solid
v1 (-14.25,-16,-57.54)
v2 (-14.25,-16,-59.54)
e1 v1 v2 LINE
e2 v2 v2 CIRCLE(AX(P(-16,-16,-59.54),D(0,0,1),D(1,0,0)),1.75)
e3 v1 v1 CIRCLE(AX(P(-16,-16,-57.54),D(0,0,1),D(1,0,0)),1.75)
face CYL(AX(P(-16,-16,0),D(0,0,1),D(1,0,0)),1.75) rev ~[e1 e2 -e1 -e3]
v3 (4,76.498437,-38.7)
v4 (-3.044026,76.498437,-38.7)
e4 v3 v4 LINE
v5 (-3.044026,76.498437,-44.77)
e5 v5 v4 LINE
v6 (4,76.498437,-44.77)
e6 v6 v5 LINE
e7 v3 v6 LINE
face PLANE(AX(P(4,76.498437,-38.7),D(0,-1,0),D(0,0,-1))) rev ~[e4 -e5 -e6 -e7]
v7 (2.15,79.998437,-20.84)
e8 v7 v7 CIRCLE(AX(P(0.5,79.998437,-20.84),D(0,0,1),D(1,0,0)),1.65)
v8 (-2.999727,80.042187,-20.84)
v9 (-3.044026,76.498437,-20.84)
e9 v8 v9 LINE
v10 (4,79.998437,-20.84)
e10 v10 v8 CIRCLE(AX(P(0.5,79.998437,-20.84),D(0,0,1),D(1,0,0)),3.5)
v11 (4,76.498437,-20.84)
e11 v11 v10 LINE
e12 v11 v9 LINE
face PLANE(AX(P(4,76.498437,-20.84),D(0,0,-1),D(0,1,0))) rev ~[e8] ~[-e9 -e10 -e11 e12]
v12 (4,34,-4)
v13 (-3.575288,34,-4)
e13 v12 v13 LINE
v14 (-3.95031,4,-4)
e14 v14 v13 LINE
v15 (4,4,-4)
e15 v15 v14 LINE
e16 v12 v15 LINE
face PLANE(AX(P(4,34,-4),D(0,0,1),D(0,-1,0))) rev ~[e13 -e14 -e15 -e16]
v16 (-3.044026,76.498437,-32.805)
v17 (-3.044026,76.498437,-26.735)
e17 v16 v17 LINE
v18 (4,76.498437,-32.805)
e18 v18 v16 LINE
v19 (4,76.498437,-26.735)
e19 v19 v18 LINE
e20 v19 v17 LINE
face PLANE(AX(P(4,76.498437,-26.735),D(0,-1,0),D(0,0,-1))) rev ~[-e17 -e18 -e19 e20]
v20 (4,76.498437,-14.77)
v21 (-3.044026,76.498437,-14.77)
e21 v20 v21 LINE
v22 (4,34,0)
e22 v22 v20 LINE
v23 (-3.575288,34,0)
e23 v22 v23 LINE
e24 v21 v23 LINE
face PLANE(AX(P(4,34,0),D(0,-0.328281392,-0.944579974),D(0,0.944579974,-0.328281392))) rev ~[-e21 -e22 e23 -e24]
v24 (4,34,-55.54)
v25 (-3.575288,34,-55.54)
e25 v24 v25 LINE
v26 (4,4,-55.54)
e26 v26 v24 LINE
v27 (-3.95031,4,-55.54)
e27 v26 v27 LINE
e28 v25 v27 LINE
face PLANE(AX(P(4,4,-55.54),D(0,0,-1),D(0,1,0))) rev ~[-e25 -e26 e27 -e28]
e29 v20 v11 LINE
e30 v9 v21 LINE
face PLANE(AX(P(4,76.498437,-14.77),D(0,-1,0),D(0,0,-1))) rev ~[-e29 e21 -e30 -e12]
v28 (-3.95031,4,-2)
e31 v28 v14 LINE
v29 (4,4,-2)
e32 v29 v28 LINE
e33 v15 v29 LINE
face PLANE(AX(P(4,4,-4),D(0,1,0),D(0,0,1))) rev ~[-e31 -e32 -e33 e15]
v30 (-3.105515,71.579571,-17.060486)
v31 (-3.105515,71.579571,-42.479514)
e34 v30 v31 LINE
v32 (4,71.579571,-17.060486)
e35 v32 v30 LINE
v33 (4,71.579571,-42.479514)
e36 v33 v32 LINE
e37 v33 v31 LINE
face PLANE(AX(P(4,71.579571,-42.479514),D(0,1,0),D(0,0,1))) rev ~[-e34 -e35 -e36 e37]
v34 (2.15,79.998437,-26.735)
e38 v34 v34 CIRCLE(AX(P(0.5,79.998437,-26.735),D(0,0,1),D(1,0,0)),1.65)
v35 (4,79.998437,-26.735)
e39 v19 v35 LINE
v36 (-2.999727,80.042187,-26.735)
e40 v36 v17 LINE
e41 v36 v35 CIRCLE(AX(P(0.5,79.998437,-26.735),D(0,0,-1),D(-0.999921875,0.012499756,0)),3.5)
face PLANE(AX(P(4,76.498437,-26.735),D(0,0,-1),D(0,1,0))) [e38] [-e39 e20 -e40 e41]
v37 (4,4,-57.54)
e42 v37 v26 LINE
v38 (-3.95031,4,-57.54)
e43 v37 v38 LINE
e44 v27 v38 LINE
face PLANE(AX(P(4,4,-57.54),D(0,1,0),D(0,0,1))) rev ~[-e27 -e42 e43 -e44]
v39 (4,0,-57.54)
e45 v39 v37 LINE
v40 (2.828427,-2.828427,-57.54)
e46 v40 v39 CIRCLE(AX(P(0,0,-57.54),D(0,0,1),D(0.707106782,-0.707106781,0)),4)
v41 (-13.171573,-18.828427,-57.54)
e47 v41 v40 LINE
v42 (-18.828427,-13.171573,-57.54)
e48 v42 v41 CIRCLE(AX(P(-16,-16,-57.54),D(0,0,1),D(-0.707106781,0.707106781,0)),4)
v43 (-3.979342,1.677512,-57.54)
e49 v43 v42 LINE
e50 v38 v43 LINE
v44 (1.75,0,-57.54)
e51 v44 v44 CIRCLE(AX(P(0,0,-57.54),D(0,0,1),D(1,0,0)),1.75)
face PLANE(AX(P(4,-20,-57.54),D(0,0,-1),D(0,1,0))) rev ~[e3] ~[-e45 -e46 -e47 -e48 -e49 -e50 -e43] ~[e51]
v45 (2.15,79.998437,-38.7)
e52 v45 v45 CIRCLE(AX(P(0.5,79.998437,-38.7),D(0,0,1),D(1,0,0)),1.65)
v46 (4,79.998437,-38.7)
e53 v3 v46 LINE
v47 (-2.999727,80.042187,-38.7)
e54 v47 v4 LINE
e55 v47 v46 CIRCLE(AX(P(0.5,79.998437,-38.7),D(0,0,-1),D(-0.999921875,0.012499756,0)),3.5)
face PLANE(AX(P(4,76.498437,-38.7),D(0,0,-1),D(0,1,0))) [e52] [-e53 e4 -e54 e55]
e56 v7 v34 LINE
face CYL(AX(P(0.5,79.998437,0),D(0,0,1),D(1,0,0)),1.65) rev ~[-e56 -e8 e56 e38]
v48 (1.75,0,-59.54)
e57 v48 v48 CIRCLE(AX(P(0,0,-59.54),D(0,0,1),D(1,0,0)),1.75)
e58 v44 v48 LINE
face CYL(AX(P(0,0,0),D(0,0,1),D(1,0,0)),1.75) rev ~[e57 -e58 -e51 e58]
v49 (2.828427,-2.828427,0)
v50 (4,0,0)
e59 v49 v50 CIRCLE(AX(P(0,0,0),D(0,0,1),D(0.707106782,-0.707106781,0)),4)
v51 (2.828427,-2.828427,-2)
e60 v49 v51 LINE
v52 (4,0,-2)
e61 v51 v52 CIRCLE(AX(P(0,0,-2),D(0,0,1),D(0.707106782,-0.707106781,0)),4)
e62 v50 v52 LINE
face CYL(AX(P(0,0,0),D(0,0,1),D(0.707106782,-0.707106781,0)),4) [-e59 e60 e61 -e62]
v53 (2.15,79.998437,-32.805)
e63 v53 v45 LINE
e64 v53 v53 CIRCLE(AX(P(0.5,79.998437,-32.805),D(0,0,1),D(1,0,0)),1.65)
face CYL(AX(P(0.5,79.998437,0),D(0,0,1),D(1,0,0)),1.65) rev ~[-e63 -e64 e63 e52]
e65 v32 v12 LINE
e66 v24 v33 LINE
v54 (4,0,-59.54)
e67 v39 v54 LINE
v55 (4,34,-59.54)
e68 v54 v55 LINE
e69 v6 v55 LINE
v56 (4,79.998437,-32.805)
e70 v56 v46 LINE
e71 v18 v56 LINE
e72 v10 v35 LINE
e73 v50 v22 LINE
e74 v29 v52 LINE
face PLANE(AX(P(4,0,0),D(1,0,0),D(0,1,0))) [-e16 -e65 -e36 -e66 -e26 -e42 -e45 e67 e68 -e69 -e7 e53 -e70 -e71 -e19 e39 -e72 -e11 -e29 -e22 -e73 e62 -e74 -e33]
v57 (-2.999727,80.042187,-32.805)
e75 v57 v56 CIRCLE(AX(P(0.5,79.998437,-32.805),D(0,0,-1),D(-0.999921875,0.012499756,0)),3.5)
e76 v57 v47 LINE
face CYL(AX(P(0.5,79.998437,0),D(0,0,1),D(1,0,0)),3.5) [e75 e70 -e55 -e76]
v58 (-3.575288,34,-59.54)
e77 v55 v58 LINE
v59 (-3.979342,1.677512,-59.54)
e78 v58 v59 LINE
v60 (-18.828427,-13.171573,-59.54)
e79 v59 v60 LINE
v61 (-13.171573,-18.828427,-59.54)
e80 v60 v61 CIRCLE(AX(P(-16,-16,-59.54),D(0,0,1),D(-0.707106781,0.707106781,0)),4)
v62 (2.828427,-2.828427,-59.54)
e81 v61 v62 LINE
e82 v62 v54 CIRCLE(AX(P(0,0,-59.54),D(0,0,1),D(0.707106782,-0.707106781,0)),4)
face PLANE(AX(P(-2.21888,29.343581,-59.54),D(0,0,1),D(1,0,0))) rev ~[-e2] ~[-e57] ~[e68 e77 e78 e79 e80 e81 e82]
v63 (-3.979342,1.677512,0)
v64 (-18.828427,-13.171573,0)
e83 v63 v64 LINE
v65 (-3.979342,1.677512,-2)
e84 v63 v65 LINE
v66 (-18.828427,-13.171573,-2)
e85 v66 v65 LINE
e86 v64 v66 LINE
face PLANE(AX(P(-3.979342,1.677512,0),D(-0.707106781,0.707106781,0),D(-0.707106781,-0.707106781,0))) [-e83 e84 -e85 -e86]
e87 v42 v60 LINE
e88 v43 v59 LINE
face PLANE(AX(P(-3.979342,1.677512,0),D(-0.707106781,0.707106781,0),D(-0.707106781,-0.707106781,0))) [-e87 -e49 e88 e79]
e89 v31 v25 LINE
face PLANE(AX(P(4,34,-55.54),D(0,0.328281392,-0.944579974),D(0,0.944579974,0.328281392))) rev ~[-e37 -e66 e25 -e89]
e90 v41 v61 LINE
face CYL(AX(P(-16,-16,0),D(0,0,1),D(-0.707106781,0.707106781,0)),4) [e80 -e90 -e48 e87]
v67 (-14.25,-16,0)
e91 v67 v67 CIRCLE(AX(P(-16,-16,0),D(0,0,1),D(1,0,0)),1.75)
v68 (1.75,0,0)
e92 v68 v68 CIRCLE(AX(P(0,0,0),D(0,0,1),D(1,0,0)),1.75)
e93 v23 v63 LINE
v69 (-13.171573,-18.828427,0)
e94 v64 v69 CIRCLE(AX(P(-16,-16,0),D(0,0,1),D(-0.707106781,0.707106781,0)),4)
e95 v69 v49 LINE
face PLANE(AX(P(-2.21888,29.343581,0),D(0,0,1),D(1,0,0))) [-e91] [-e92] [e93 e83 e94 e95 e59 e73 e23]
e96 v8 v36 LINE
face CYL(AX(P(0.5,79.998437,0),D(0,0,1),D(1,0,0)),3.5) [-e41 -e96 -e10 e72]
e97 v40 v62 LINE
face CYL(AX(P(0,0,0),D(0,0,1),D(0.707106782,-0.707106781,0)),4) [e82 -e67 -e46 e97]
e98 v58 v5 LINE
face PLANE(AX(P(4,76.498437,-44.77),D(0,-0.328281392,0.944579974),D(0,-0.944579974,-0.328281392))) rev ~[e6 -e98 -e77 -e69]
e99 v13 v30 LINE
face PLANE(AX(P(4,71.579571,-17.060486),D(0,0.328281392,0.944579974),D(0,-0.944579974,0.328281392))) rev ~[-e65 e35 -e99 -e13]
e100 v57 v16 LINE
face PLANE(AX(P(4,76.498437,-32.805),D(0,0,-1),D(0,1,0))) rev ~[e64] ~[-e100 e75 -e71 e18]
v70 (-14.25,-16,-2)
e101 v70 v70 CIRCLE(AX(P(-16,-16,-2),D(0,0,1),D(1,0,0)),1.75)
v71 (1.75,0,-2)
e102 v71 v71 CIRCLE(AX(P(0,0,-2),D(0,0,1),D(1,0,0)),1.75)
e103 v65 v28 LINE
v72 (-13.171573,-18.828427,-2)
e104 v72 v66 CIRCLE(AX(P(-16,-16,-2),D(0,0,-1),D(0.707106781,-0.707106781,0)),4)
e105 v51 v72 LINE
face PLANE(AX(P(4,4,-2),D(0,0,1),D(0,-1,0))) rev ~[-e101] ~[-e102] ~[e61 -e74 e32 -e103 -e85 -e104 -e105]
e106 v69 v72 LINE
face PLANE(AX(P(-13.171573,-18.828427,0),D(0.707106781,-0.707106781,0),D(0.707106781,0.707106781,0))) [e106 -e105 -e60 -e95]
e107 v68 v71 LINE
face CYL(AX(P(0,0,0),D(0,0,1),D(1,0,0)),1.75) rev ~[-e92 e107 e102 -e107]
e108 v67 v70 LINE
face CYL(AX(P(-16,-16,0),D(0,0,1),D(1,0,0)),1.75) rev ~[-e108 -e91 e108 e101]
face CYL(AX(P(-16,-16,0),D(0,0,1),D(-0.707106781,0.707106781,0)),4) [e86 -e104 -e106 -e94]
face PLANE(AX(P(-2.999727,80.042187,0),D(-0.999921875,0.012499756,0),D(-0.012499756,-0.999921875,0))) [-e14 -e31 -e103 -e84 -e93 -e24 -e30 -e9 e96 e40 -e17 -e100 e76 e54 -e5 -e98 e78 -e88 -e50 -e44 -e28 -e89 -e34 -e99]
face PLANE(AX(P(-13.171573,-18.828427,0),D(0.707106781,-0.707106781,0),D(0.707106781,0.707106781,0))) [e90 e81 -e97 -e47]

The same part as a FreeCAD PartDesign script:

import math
import FreeCAD as App
import Part
import Sketcher

V = App.Vector
Q = App.Units.Quantity


def add_polygon(sketch, points):
    """Adds a closed chain of lines whose ends are joined by coincident constraints."""
    first, n = sketch.GeometryCount, len(points)
    for a, b in zip(points, points[1:] + points[:1]):
        sketch.addGeometry(Part.LineSegment(App.Vector(*a, 0), App.Vector(*b, 0)), False)
    for i in range(n):
        sketch.addConstraint(Sketcher.Constraint("Coincident", first + i, 2, first + (i + 1) % n, 1))

doc = App.newDocument("Part")
body = doc.addObject("PartDesign::Body", "Body")

# Sketch on XY plane
sketch1 = body.newObject("Sketcher::SketchObject", "Sketch")
sketch1.AttachmentSupport = (doc.getObject("XY_Plane"), [""])
sketch1.MapMode = "FlatFace"
sketch1.addGeometry([
    Part.LineSegment(V(-13.2, -18.8, 0), V(2.8, -2.8, 0)),  # 0
    Part.ArcOfCircle(Part.Circle(V(0, 0, 0), V(0, 0, 1), 4), math.radians(-45), math.radians(0)),  # 1
    Part.LineSegment(V(4, 0, 0), V(4, 80, 0)),  # 2
    Part.ArcOfCircle(Part.Circle(V(0.5, 80, 0), V(0, 0, 1), 3.5), math.radians(0), math.radians(179)),  # 3
    Part.LineSegment(V(-3, 80, 0), V(-4, 1.7, 0)),  # 4
    Part.LineSegment(V(-4, 1.7, 0), V(-18.8, -13.2, 0)),  # 5
    Part.ArcOfCircle(Part.Circle(V(-16, -16, 0), V(0, 0, 1), 4), math.radians(135), math.radians(315)),  # 6
    Part.Circle(V(-16, -16, 0), V(0, 0, 1), 1.8),  # 7
    Part.Circle(V(0, 0, 0), V(0, 0, 1), 1.8),  # 8
    Part.Circle(V(0.5, 80, 0), V(0, 0, 1), 1.6),  # 9
], False)
sketch1.addConstraint([
    Sketcher.Constraint("Tangent", 0, 2, 1, 1),
    Sketcher.Constraint("Tangent", 1, 2, 2, 1),
    Sketcher.Constraint("Tangent", 2, 2, 3, 1),
    Sketcher.Constraint("Tangent", 3, 2, 4, 1),
    Sketcher.Constraint("Coincident", 4, 2, 5, 1),
    Sketcher.Constraint("Tangent", 5, 2, 6, 1),
    Sketcher.Constraint("Tangent", 6, 2, 0, 1),
    Sketcher.Constraint("Vertical", 2),
    Sketcher.Constraint("Coincident", 1, 3, -1, 1),
    Sketcher.Constraint("Coincident", 8, 3, -1, 1),
    Sketcher.Constraint("Coincident", 7, 3, 6, 3),
    Sketcher.Constraint("Coincident", 9, 3, 3, 3),
    Sketcher.Constraint("Equal", 1, 6),
    Sketcher.Constraint("Equal", 7, 8),
    Sketcher.Constraint("Parallel", 0, 5),
    Sketcher.Constraint("Radius", 1, 4.0),
    Sketcher.Constraint("Diameter", 7, 3.5),
    Sketcher.Constraint("Diameter", 9, 3.3),
    Sketcher.Constraint("Radius", 3, 3.5),
    Sketcher.Constraint("Angle", 0, Q("45 deg")),
    Sketcher.Constraint("DistanceX", 6, 3, -1, 1, 16.0),
    Sketcher.Constraint("DistanceY", 2, 1, 2, 2, 79.998437),
    Sketcher.Constraint("DistanceY", -1, 1, 4, 2, 1.677512),
])
pad1 = body.newObject("PartDesign::Pad", "Pad")
pad1.Profile = sketch1
pad1.Length = 59.54
pad1.Reversed = True

# Sketch on YZ plane
sketch2 = body.newObject("Sketcher::SketchObject", "Sketch001")
sketch2.AttachmentSupport = (doc.getObject("YZ_Plane"), [""])
sketch2.MapMode = "FlatFace"
sketch2.AttachmentOffset = App.Placement(V(0, 0, 4), App.Rotation())
add_polygon(sketch2, [(4, -2), (-20, -2), (-20, -57.5), (4, -57.5), (4, -55.5), (34, -55.5), (71.6, -42.5), (71.6, -17.1), (34, -4), (4, -4)])  # lines 0-9
add_polygon(sketch2, [(83.5, -26.7), (76.5, -26.7), (76.5, -32.8), (83.5, -32.8)])  # lines 10-13
add_polygon(sketch2, [(83.5, 0), (34, 0), (76.5, -14.8), (76.5, -20.8), (83.5, -20.8)])  # lines 14-18
add_polygon(sketch2, [(76.5, -44.8), (34, -59.5), (83.5, -59.5), (83.5, -38.7), (76.5, -38.7)])  # lines 19-23
sketch2.addConstraint([
    Sketcher.Constraint("Horizontal", 0),
    Sketcher.Constraint("Vertical", 1),
    Sketcher.Constraint("Horizontal", 2),
    Sketcher.Constraint("Vertical", 3),
    Sketcher.Constraint("Horizontal", 4),
    Sketcher.Constraint("Vertical", 6),
    Sketcher.Constraint("Horizontal", 8),
    Sketcher.Constraint("Vertical", 9),
    Sketcher.Constraint("Horizontal", 10),
    Sketcher.Constraint("Vertical", 11),
    Sketcher.Constraint("Horizontal", 12),
    Sketcher.Constraint("Vertical", 13),
    Sketcher.Constraint("Horizontal", 14),
    Sketcher.Constraint("Vertical", 16),
    Sketcher.Constraint("Horizontal", 17),
    Sketcher.Constraint("Vertical", 18),
    Sketcher.Constraint("Horizontal", 20),
    Sketcher.Constraint("Vertical", 21),
    Sketcher.Constraint("Horizontal", 22),
    Sketcher.Constraint("Vertical", 23),
    Sketcher.Constraint("PointOnObject", 14, 2, -1),
    Sketcher.Constraint("Parallel", 7, 15),
    Sketcher.Constraint("Parallel", 5, 19),
    Sketcher.Constraint("Vertical", 4, 2, 7, 2),
    Sketcher.Constraint("Vertical", 3, 2, 8, 2),
    Sketcher.Constraint("Vertical", 7, 2, 14, 2),
    Sketcher.Constraint("Vertical", 11, 2, 15, 2),
    Sketcher.Constraint("Vertical", 13, 2, 17, 2),
    Sketcher.Constraint("Vertical", 14, 2, 19, 2),
    Sketcher.Constraint("Vertical", 18, 2, 20, 2),
    Sketcher.Constraint("Vertical", 16, 2, 22, 2),
    Sketcher.Constraint("Equal", 3, 9),
    Sketcher.Constraint("Equal", 13, 16),
    Sketcher.Constraint("Equal", 18, 21),
    Sketcher.Constraint("Equal", 16, 23),
    Sketcher.Constraint("DistanceX", 0, 2, 0, 1, 24.0),
    Sketcher.Constraint("DistanceX", 4, 1, 4, 2, 30.0),
    Sketcher.Constraint("DistanceX", 10, 2, 10, 1, 7.0),
    Sketcher.Constraint("DistanceY", 3, 1, 3, 2, 2.0),
    Sketcher.Constraint("DistanceX", 0, 2, -1, 1, 20.0),
    Sketcher.Constraint("DistanceY", 0, 2, -1, 1, 2.0),
    Sketcher.Constraint("DistanceY", 19, 2, 4, 2, 4.0),
    Sketcher.Constraint("DistanceY", 1, 2, 1, 1, 55.54),
    Sketcher.Constraint("DistanceY", 11, 2, 11, 1, 6.07),
    Sketcher.Constraint("DistanceY", 18, 1, 18, 2, 20.84),
    Sketcher.Constraint("DistanceY", 10, 2, -1, 1, 26.735),
    Sketcher.Constraint("Distance", 15, 44.991889),
    Sketcher.Constraint("DistanceY", 6, 1, 6, 2, 25.419028),
])
pocket1 = body.newObject("PartDesign::Pocket", "Pocket")
pocket1.Profile = sketch2
pocket1.Type = "ThroughAll"

doc.recompute()
